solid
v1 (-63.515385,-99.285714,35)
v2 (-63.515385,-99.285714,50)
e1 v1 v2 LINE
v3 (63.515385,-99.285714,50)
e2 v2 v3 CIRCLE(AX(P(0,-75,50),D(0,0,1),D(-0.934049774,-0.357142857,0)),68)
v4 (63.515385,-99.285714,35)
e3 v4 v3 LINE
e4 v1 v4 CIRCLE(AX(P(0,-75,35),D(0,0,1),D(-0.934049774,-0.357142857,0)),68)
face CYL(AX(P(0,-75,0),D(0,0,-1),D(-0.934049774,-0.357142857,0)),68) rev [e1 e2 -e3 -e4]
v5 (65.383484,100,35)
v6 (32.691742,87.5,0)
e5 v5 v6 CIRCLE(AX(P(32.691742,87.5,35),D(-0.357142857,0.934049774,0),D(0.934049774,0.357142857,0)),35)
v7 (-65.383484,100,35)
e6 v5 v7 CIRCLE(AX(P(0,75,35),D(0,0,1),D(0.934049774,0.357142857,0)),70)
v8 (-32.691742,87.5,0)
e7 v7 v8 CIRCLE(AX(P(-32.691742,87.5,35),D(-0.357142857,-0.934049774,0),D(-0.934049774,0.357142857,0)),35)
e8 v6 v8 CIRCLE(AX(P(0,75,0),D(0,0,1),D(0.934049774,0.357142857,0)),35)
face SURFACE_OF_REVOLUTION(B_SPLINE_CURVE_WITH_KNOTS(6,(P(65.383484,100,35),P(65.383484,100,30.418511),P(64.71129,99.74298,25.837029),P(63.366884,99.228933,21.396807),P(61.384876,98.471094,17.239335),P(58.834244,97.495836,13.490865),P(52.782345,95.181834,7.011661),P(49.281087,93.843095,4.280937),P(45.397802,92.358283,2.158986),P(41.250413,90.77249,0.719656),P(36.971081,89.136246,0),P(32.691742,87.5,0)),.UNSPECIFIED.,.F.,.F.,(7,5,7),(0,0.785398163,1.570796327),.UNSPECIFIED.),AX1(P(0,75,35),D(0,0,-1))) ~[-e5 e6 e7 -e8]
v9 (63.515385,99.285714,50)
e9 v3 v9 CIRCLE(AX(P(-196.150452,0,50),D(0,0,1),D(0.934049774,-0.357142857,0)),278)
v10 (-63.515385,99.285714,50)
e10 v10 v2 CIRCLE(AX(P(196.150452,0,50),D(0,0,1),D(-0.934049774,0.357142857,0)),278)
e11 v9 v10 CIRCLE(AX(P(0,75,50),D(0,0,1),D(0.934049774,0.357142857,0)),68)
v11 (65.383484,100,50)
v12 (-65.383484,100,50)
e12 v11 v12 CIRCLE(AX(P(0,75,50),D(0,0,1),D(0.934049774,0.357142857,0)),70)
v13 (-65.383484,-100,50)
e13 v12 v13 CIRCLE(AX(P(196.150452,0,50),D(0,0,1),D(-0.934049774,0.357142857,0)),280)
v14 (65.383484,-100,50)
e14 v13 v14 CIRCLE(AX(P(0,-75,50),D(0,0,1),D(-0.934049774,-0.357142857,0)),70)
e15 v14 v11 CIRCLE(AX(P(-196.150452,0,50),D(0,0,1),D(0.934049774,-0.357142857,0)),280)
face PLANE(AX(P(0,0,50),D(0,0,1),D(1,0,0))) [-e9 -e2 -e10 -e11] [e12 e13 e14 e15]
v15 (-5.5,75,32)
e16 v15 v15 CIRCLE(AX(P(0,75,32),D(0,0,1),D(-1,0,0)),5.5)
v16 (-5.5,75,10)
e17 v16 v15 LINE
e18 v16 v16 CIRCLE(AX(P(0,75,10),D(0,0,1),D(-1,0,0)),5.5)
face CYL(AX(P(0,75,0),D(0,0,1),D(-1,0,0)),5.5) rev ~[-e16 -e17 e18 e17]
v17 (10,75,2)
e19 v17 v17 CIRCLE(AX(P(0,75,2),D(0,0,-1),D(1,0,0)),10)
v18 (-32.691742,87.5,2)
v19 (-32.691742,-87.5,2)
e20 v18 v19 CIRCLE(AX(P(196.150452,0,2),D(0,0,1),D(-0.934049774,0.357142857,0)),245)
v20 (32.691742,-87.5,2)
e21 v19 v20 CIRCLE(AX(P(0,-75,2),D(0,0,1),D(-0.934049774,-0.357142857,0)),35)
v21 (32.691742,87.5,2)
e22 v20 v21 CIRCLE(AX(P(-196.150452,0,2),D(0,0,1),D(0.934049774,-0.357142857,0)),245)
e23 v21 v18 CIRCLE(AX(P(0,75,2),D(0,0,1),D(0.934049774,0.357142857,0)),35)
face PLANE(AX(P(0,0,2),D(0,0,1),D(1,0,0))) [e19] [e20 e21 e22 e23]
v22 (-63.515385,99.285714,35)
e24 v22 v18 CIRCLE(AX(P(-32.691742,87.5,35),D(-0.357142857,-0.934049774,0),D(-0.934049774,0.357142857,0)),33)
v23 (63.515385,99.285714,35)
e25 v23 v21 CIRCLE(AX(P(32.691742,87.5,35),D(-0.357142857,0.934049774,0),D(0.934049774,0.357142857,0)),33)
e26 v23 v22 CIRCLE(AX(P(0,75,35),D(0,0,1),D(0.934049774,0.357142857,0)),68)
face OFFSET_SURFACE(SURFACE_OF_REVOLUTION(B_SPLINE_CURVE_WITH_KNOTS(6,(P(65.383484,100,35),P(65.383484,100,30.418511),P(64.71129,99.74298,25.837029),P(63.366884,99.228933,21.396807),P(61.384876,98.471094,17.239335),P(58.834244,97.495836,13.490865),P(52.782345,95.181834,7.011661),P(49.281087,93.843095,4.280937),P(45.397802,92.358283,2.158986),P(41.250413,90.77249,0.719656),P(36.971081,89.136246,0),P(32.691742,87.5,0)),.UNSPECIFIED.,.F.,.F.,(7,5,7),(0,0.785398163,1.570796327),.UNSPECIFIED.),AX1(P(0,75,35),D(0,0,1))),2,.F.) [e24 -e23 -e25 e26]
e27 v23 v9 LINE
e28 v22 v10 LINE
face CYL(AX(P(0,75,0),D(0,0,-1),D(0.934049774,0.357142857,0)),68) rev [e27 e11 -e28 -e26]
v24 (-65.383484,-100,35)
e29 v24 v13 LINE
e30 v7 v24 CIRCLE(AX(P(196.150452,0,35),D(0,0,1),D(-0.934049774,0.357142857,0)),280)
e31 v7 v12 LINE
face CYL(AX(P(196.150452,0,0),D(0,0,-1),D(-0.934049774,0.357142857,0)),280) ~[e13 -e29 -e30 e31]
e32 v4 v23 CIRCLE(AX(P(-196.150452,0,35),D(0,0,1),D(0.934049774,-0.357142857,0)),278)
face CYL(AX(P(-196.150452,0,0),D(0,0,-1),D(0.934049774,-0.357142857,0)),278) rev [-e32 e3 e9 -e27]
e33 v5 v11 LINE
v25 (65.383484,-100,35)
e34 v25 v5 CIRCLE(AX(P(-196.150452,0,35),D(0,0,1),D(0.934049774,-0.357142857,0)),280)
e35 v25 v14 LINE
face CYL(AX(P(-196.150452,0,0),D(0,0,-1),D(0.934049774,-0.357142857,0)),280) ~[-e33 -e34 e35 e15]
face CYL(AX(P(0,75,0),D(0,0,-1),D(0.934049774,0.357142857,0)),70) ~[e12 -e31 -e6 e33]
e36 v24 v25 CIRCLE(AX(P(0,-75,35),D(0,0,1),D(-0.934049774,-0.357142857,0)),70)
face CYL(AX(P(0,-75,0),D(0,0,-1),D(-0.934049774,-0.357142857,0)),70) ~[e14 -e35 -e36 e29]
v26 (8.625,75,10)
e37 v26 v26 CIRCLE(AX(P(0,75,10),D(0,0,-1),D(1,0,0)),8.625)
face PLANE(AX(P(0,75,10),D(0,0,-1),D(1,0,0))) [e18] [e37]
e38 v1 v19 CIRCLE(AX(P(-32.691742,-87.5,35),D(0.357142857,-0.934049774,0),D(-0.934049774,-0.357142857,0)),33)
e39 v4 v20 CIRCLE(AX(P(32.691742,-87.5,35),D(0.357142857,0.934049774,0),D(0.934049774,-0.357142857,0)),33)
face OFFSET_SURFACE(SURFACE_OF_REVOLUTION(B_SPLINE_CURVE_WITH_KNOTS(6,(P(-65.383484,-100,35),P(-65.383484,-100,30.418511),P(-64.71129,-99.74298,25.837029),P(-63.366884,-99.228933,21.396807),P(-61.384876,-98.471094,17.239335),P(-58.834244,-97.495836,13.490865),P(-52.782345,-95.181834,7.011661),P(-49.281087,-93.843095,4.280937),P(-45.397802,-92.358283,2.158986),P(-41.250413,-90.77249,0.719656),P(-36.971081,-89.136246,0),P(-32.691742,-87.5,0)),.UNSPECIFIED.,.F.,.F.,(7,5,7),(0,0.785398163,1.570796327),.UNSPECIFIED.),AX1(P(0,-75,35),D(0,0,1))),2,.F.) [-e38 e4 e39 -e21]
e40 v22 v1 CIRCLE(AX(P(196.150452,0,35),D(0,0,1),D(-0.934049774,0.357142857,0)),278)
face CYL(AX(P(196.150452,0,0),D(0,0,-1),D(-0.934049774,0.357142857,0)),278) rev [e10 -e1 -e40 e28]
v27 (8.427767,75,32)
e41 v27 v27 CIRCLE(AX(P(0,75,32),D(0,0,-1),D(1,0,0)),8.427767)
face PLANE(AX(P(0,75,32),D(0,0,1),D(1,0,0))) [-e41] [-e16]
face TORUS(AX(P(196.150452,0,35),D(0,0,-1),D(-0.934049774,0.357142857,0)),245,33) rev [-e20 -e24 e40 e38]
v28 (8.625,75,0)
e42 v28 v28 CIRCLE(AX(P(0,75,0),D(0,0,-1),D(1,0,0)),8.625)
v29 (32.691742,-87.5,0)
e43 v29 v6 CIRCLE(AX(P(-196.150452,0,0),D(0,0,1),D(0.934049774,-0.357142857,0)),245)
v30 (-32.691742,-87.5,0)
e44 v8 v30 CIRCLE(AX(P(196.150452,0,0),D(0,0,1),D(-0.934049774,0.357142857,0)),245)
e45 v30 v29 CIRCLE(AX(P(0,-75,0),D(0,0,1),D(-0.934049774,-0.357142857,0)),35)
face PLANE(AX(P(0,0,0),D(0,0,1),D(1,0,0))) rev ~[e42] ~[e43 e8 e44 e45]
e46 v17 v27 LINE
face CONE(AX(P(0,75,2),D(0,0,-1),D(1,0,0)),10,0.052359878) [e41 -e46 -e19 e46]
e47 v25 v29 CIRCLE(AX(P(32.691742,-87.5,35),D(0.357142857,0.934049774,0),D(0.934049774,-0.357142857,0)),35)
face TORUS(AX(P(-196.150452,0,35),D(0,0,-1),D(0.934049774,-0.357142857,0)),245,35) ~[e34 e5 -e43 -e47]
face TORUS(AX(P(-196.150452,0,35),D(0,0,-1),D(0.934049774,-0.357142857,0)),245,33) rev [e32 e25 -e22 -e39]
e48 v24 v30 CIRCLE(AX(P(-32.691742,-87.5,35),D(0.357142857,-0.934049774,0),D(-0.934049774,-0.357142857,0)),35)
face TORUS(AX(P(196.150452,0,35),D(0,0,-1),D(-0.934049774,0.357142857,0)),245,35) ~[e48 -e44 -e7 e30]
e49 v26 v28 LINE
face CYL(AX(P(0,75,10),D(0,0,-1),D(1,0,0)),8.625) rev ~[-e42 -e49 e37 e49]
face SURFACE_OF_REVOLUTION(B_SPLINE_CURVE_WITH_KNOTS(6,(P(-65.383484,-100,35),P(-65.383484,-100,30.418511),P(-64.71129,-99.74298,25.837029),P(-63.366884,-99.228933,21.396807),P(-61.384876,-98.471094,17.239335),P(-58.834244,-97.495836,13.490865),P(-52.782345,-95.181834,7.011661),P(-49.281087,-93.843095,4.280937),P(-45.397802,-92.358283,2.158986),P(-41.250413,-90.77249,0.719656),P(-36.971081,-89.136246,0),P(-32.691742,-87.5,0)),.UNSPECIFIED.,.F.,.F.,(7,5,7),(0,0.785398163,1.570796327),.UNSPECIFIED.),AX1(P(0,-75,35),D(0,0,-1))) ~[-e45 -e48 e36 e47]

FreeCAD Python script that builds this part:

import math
import FreeCAD as App
import Part
import Sketcher

V = App.Vector
Q = App.Units.Quantity


def edges_at(feature, points):
    """Names of the edges that pass closest to the given points."""
    edges = feature.Shape.Edges
    near = lambda p: min(range(len(edges)), key=lambda i: edges[i].distToShape(Part.Vertex(*p))[0])
    return sorted({f"Edge{near(p) + 1}" for p in points})


def faces_at(feature, points):
    """Names of the faces that lie closest to the given points."""
    faces = feature.Shape.Faces
    near = lambda p: min(range(len(faces)), key=lambda i: faces[i].distToShape(Part.Vertex(*p))[0])
    return sorted({f"Face{near(p) + 1}" for p in points})

doc = App.newDocument("Part")
body = doc.addObject("PartDesign::Body", "Body")

# Sketch on XY plane
sketch1 = doc.addObject("Sketcher::SketchObject", "Sketch")
body.addObject(sketch1)
sketch1.AttachmentSupport = (doc.XY_Plane, [""])
sketch1.MapMode = "FlatFace"
sketch1.addGeometry(Part.ArcOfCircle(Part.Circle(V(0, 75, 0), V(0, 0, 1), 70), math.radians(21), math.radians(159)), False)
sketch1.addGeometry(Part.ArcOfCircle(Part.Circle(V(196, 0, 0), V(0, 0, 1), 280), math.radians(159), math.radians(201)), False)
sketch1.addGeometry(Part.ArcOfCircle(Part.Circle(V(0, -75, 0), V(0, 0, 1), 70), math.radians(-159), math.radians(-21)), False)
sketch1.addGeometry(Part.ArcOfCircle(Part.Circle(V(-196, 0, 0), V(0, 0, 1), 280), math.radians(-21), math.radians(21)), False)
sketch1.addConstraint(Sketcher.Constraint("Tangent", 0, 2, 1, 1))
sketch1.addConstraint(Sketcher.Constraint("Tangent", 1, 2, 2, 1))
sketch1.addConstraint(Sketcher.Constraint("Tangent", 2, 2, 3, 1))
sketch1.addConstraint(Sketcher.Constraint("Tangent", 3, 2, 0, 1))
sketch1.addConstraint(Sketcher.Constraint("Equal", 0, 2))
sketch1.addConstraint(Sketcher.Constraint("Equal", 1, 3))
sketch1.addConstraint(Sketcher.Constraint("Symmetric", 0, 3, 2, 3, -1, 1))
sketch1.addConstraint(Sketcher.Constraint("PointOnObject", 0, 3, -2))
sketch1.addConstraint(Sketcher.Constraint("Radius", 0, Q("70 mm")))
sketch1.addConstraint(Sketcher.Constraint("Radius", 1, Q("280 mm")))
sketch1.addConstraint(Sketcher.Constraint("DistanceY", -1, 1, 0, 3, Q("75 mm")))
pad1 = doc.addObject("PartDesign::Pad", "Pad")
body.addObject(pad1)
pad1.Profile = sketch1
pad1.Length = 50
doc.recompute()

fillet = doc.addObject("PartDesign::Fillet", "Fillet")
body.addObject(fillet)
fillet.Base = (pad1, edges_at(pad1, [(0, -145, 0)]))
fillet.Radius = 35
doc.recompute()

thickness = doc.addObject("PartDesign::Thickness", "Thickness")
body.addObject(thickness)
thickness.Base = (fillet, faces_at(fillet, [(0, 0, 50)]))
thickness.Value = 2
thickness.Reversed = True
thickness.Join = "Arc"

# Sketch on XY plane
sketch2 = doc.addObject("Sketcher::SketchObject", "Sketch001")
body.addObject(sketch2)
sketch2.AttachmentSupport = (doc.XY_Plane, [""])
sketch2.MapMode = "FlatFace"
sketch2.AttachmentOffset = App.Placement(V(0, 0, 2), App.Rotation())
sketch2.addGeometry(Part.Circle(V(0, 75, 0), V(0, 0, 1), 10), False)
sketch2.addConstraint(Sketcher.Constraint("PointOnObject", 0, 3, -2))
sketch2.addConstraint(Sketcher.Constraint("Diameter", 0, Q("20 mm")))
sketch2.addConstraint(Sketcher.Constraint("DistanceY", -1, 1, 0, 3, Q("75 mm")))
pad2 = doc.addObject("PartDesign::Pad", "Pad001")
body.addObject(pad2)
pad2.Profile = sketch2
pad2.Length = 30
pad2.TaperAngle = -3

# Sketch on XY plane
sketch3 = doc.addObject("Sketcher::SketchObject", "Sketch002")
body.addObject(sketch3)
sketch3.AttachmentSupport = (doc.XY_Plane, [""])
sketch3.MapMode = "FlatFace"
sketch3.addGeometry(Part.Circle(V(0, 75, 0), V(0, 0, 1), 6), False)
sketch3.addConstraint(Sketcher.Constraint("PointOnObject", 0, 3, -2))
sketch3.addConstraint(Sketcher.Constraint("Diameter", 0, Q("11 mm")))
sketch3.addConstraint(Sketcher.Constraint("DistanceY", -1, 1, 0, 3, Q("75 mm")))
doc.recompute()
hole = doc.addObject("PartDesign::Hole", "Hole")
body.addObject(hole)
hole.Profile = sketch3
hole.ThreadType = "None"
hole.Diameter = 11
hole.DepthType = "ThroughAll"
hole.HoleCutType = "Counterbore"
hole.HoleCutDiameter = 17.25
hole.HoleCutDepth = 10
hole.Reversed = True

doc.recompute()
